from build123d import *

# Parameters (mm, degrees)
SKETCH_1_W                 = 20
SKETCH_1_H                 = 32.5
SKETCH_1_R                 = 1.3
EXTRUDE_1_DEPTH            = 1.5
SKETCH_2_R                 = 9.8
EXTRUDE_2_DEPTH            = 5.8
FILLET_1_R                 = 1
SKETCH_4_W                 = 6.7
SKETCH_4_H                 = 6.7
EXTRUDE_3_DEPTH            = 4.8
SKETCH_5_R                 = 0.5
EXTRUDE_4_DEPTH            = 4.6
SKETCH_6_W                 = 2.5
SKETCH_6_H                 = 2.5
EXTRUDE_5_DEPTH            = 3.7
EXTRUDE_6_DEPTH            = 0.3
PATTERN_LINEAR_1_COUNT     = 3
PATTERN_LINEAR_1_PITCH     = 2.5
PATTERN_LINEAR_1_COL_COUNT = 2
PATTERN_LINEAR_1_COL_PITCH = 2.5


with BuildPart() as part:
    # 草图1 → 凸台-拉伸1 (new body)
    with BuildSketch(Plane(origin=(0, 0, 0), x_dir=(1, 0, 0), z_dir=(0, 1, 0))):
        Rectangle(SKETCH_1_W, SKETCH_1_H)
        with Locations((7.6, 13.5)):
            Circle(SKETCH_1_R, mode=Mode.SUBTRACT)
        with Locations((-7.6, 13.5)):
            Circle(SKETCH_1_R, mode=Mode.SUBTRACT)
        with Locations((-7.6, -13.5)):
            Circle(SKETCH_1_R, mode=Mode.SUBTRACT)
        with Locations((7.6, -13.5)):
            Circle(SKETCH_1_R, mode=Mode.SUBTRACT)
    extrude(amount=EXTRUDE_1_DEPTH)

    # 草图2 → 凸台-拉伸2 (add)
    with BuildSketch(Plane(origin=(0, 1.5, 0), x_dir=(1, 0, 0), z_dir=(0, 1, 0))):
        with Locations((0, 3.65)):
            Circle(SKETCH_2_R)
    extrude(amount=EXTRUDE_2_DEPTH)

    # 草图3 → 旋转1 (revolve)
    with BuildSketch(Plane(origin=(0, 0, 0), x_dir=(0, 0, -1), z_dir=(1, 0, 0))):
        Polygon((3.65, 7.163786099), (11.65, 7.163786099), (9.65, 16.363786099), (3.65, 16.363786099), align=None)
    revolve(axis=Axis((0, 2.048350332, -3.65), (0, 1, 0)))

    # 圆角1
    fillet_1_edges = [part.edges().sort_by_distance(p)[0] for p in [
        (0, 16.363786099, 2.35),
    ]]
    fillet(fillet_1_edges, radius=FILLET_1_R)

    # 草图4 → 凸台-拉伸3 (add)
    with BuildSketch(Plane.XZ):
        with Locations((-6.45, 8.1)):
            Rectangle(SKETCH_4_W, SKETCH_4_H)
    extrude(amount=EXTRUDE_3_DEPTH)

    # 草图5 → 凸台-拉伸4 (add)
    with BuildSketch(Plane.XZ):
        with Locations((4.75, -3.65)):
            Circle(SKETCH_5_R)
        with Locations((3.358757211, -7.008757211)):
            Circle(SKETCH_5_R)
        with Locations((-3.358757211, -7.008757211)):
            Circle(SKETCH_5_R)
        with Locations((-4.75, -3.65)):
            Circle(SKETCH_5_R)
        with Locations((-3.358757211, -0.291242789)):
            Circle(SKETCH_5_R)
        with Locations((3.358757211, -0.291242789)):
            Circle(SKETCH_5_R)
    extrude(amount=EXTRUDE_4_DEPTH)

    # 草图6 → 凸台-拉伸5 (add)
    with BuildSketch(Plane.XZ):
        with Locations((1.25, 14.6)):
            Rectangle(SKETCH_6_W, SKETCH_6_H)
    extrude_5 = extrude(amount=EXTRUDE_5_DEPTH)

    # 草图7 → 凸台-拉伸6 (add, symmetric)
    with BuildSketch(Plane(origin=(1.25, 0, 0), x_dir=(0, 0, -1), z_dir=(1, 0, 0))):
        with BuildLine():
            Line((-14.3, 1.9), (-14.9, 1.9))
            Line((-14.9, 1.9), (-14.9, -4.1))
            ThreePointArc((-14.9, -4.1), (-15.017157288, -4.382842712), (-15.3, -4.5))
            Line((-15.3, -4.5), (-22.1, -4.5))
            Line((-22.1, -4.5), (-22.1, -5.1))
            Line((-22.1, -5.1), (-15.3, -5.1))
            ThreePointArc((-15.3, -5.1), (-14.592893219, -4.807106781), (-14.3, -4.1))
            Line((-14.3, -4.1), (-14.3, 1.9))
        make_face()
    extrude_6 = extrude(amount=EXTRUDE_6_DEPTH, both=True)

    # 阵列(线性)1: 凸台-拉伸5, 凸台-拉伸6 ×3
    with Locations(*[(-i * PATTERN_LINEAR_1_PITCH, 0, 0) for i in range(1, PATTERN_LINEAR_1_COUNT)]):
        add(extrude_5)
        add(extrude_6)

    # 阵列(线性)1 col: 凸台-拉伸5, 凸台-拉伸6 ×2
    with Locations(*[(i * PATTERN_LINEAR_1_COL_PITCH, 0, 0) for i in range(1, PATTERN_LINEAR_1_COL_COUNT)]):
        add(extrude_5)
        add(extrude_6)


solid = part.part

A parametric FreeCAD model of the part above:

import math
import FreeCAD as App
import Part
import Sketcher

V = App.Vector
Q = App.Units.Quantity


def edges_at(feature, points):
    """Names of the edges that pass closest to the given points."""
    edges = feature.Shape.Edges
    near = lambda p: min(range(len(edges)), key=lambda i: edges[i].distToShape(Part.Vertex(*p))[0])
    return sorted({f"Edge{near(p) + 1}" for p in points})

doc = App.newDocument("Part")
body = doc.addObject("PartDesign::Body", "Body")

# Sketch on XZ plane
sketch1 = doc.addObject("Sketcher::SketchObject", "Sketch")
body.addObject(sketch1)
sketch1.AttachmentSupport = (doc.XZ_Plane, [""])
sketch1.MapMode = "FlatFace"
sketch1.addGeometry(Part.LineSegment(V(-10, -16.2, 0), V(-10, 16.2, 0)), False)
sketch1.addGeometry(Part.LineSegment(V(-10, 16.2, 0), V(10, 16.2, 0)), False)
sketch1.addGeometry(Part.LineSegment(V(10, 16.2, 0), V(10, -16.2, 0)), False)
sketch1.addGeometry(Part.LineSegment(V(10, -16.2, 0), V(-10, -16.2, 0)), False)
sketch1.addGeometry(Part.Circle(V(-7.6, 13.5, 0), V(0, 0, 1), 1.3), False)
sketch1.addGeometry(Part.Circle(V(7.6, 13.5, 0), V(0, 0, 1), 1.3), False)
sketch1.addGeometry(Part.Circle(V(-7.6, -13.5, 0), V(0, 0, 1), 1.3), False)
sketch1.addGeometry(Part.Circle(V(7.6, -13.5, 0), V(0, 0, 1), 1.3), False)
sketch1.addConstraint(Sketcher.Constraint("Coincident", 0, 2, 1, 1))
sketch1.addConstraint(Sketcher.Constraint("Coincident", 1, 2, 2, 1))
sketch1.addConstraint(Sketcher.Constraint("Coincident", 2, 2, 3, 1))
sketch1.addConstraint(Sketcher.Constraint("Coincident", 3, 2, 0, 1))
sketch1.addConstraint(Sketcher.Constraint("Vertical", 0))
sketch1.addConstraint(Sketcher.Constraint("Horizontal", 1))
sketch1.addConstraint(Sketcher.Constraint("Vertical", 2))
sketch1.addConstraint(Sketcher.Constraint("Horizontal", 3))
sketch1.addConstraint(Sketcher.Constraint("Equal", 4, 5))
sketch1.addConstraint(Sketcher.Constraint("Equal", 5, 6))
sketch1.addConstraint(Sketcher.Constraint("Equal", 6, 7))
sketch1.addConstraint(Sketcher.Constraint("Symmetric", 5, 3, 6, 3, -1, 1))
sketch1.addConstraint(Sketcher.Constraint("Symmetric", 4, 3, 7, 3, -1, 1))
sketch1.addConstraint(Sketcher.Constraint("Symmetric", 0, 2, 2, 2, -1, 1))
sketch1.addConstraint(Sketcher.Constraint("Symmetric", 4, 3, 5, 3, -2))
sketch1.addConstraint(Sketcher.Constraint("Diameter", 4, Q("2.6 mm")))
sketch1.addConstraint(Sketcher.Constraint("DistanceX", 1, 1, 1, 2, Q("20 mm")))
sketch1.addConstraint(Sketcher.Constraint("DistanceY", 0, 1, 0, 2, Q("32.5 mm")))
sketch1.addConstraint(Sketcher.Constraint("DistanceY", 6, 3, 4, 3, Q("27 mm")))
sketch1.addConstraint(Sketcher.Constraint("DistanceX", 4, 3, -1, 1, Q("7.6 mm")))
pad1 = doc.addObject("PartDesign::Pad", "Pad")
body.addObject(pad1)
pad1.Profile = sketch1
pad1.Length = 1.5
pad1.Reversed = True

# Sketch on XZ plane
sketch2 = doc.addObject("Sketcher::SketchObject", "Sketch001")
body.addObject(sketch2)
sketch2.AttachmentSupport = (doc.XZ_Plane, [""])
sketch2.MapMode = "FlatFace"
sketch2.AttachmentOffset = App.Placement(V(0, 0, -1.5), App.Rotation())
sketch2.addGeometry(Part.Circle(V(0, -4, 0), V(0, 0, 1), 10), False)
sketch2.addConstraint(Sketcher.Constraint("PointOnObject", 0, 3, -2))
sketch2.addConstraint(Sketcher.Constraint("Diameter", 0, Q("19.6 mm")))
sketch2.addConstraint(Sketcher.Constraint("DistanceY", 0, 3, -1, 1, Q("3.65 mm")))
pad2 = doc.addObject("PartDesign::Pad", "Pad001")
body.addObject(pad2)
pad2.Profile = sketch2
pad2.Length = 5.8
pad2.Reversed = True

# Sketch on YZ plane
sketch3 = doc.addObject("Sketcher::SketchObject", "Sketch002")
body.addObject(sketch3)
sketch3.AttachmentSupport = (doc.YZ_Plane, [""])
sketch3.MapMode = "FlatFace"
sketch3.addGeometry(Part.LineSegment(V(7, -4, 0), V(7, -12, 0)), False)
sketch3.addGeometry(Part.LineSegment(V(7, -12, 0), V(16, -10, 0)), False)
sketch3.addGeometry(Part.LineSegment(V(16, -10, 0), V(16, -4, 0)), False)
sketch3.addGeometry(Part.LineSegment(V(16, -4, 0), V(7, -4, 0)), False)
sketch3.addGeometry(Part.LineSegment(V(7, -4, 0), V(16, -4, 0)), True)  # axis
sketch3.addConstraint(Sketcher.Constraint("Coincident", 0, 2, 1, 1))
sketch3.addConstraint(Sketcher.Constraint("Coincident", 1, 2, 2, 1))
sketch3.addConstraint(Sketcher.Constraint("Coincident", 2, 2, 3, 1))
sketch3.addConstraint(Sketcher.Constraint("Coincident", 3, 2, 0, 1))
sketch3.addConstraint(Sketcher.Constraint("Vertical", 0))
sketch3.addConstraint(Sketcher.Constraint("Vertical", 2))
sketch3.addConstraint(Sketcher.Constraint("Horizontal", 3))
sketch3.addConstraint(Sketcher.Constraint("Horizontal", 4))
sketch3.addConstraint(Sketcher.Constraint("Coincident", 4, 1, 3, 2))
sketch3.addConstraint(Sketcher.Constraint("Vertical", 1, 2, 4, 2))
sketch3.addConstraint(Sketcher.Constraint("DistanceY", 0, 2, 0, 1, Q("8 mm")))
sketch3.addConstraint(Sketcher.Constraint("DistanceY", 2, 1, 2, 2, Q("6 mm")))
sketch3.addConstraint(Sketcher.Constraint("DistanceX", 3, 2, 3, 1, Q("9.2 mm")))
sketch3.addConstraint(Sketcher.Constraint("DistanceY", 0, 2, -1, 1, Q("11.65 mm")))
sketch3.addConstraint(Sketcher.Constraint("DistanceX", -1, 1, 0, 2, Q("7.163786 mm")))
revolution = doc.addObject("PartDesign::Revolution", "Revolution")
body.addObject(revolution)
revolution.Profile = sketch3
revolution.ReferenceAxis = (sketch3, ["Axis0"])
revolution.Angle = 360
doc.recompute()

fillet = doc.addObject("PartDesign::Fillet", "Fillet")
body.addObject(fillet)
fillet.Base = (revolution, edges_at(revolution, [(0, 16.364, 2.35)]))
fillet.Radius = 1

# Sketch on XZ plane
sketch4 = doc.addObject("Sketcher::SketchObject", "Sketch003")
body.addObject(sketch4)
sketch4.AttachmentSupport = (doc.XZ_Plane, [""])
sketch4.MapMode = "FlatFace"
sketch4.addGeometry(Part.LineSegment(V(-10, 11, 0), V(-10, 5, 0)), False)
sketch4.addGeometry(Part.LineSegment(V(-10, 5, 0), V(-3, 5, 0)), False)
sketch4.addGeometry(Part.LineSegment(V(-3, 5, 0), V(-3, 11, 0)), False)
sketch4.addGeometry(Part.LineSegment(V(-3, 11, 0), V(-10, 11, 0)), False)
sketch4.addConstraint(Sketcher.Constraint("Coincident", 0, 2, 1, 1))
sketch4.addConstraint(Sketcher.Constraint("Coincident", 1, 2, 2, 1))
sketch4.addConstraint(Sketcher.Constraint("Coincident", 2, 2, 3, 1))
sketch4.addConstraint(Sketcher.Constraint("Coincident", 3, 2, 0, 1))
sketch4.addConstraint(Sketcher.Constraint("Vertical", 0))
sketch4.addConstraint(Sketcher.Constraint("Horizontal", 1))
sketch4.addConstraint(Sketcher.Constraint("Vertical", 2))
sketch4.addConstraint(Sketcher.Constraint("Horizontal", 3))
sketch4.addConstraint(Sketcher.Constraint("Equal", 3, 0))
sketch4.addConstraint(Sketcher.Constraint("DistanceX", 1, 1, 1, 2, Q("6.7 mm")))
sketch4.addConstraint(Sketcher.Constraint("DistanceX", 0, 2, -1, 1, Q("9.8 mm")))
sketch4.addConstraint(Sketcher.Constraint("DistanceY", -1, 1, 0, 2, Q("4.75 mm")))
pad3 = doc.addObject("PartDesign::Pad", "Pad002")
body.addObject(pad3)
pad3.Profile = sketch4
pad3.Length = 4.8

# Sketch on XZ plane
sketch5 = doc.addObject("Sketcher::SketchObject", "Sketch004")
body.addObject(sketch5)
sketch5.AttachmentSupport = (doc.XZ_Plane, [""])
sketch5.MapMode = "FlatFace"
sketch5.addGeometry(Part.Circle(V(4.8, -3.6, 0), V(0, 0, 1), 0.5), False)
sketch5.addGeometry(Part.Circle(V(3.4, -7, 0), V(0, 0, 1), 0.5), False)
sketch5.addGeometry(Part.Circle(V(-3.4, -7, 0), V(0, 0, 1), 0.5), False)
sketch5.addGeometry(Part.Circle(V(-4.8, -3.6, 0), V(0, 0, 1), 0.5), False)
sketch5.addGeometry(Part.Circle(V(-3.4, -0.3, 0), V(0, 0, 1), 0.5), False)
sketch5.addGeometry(Part.Circle(V(3.4, -0.3, 0), V(0, 0, 1), 0.5), False)
sketch5.addConstraint(Sketcher.Constraint("Equal", 0, 1))
sketch5.addConstraint(Sketcher.Constraint("Equal", 1, 2))
sketch5.addConstraint(Sketcher.Constraint("Equal", 2, 3))
sketch5.addConstraint(Sketcher.Constraint("Equal", 3, 4))
sketch5.addConstraint(Sketcher.Constraint("Equal", 4, 5))
sketch5.addConstraint(Sketcher.Constraint("Symmetric", 1, 3, 2, 3, -2))
sketch5.addConstraint(Sketcher.Constraint("Symmetric", 0, 3, 3, 3, -2))
sketch5.addConstraint(Sketcher.Constraint("Symmetric", 4, 3, 5, 3, -2))
sketch5.addConstraint(Sketcher.Constraint("Vertical", 2, 3, 4, 3))
sketch5.addConstraint(Sketcher.Constraint("Diameter", 0, Q("1 mm")))
sketch5.addConstraint(Sketcher.Constraint("DistanceX", 3, 3, 0, 3, Q("9.5 mm")))
sketch5.addConstraint(Sketcher.Constraint("DistanceY", 0, 3, -1, 1, Q("3.65 mm")))
sketch5.addConstraint(Sketcher.Constraint("DistanceX", -1, 1, 1, 3, Q("3.358757 mm")))
sketch5.addConstraint(Sketcher.Constraint("DistanceY", 1, 3, -1, 1, Q("7.008757 mm")))
sketch5.addConstraint(Sketcher.Constraint("DistanceY", 4, 3, -1, 1, Q("0.291243 mm")))
pad4 = doc.addObject("PartDesign::Pad", "Pad003")
body.addObject(pad4)
pad4.Profile = sketch5
pad4.Length = 4.6

# Sketch on XZ plane
sketch6 = doc.addObject("Sketcher::SketchObject", "Sketch005")
body.addObject(sketch6)
sketch6.AttachmentSupport = (doc.XZ_Plane, [""])
sketch6.MapMode = "FlatFace"
sketch6.addGeometry(Part.LineSegment(V(0, 15.8, 0), V(0, 13.3, 0)), False)
sketch6.addGeometry(Part.LineSegment(V(0, 13.3, 0), V(2.5, 13.3, 0)), False)
sketch6.addGeometry(Part.LineSegment(V(2.5, 13.3, 0), V(2.5, 15.8, 0)), False)
sketch6.addGeometry(Part.LineSegment(V(2.5, 15.8, 0), V(0, 15.8, 0)), False)
sketch6.addConstraint(Sketcher.Constraint("Coincident", 0, 2, 1, 1))
sketch6.addConstraint(Sketcher.Constraint("Coincident", 1, 2, 2, 1))
sketch6.addConstraint(Sketcher.Constraint("Coincident", 2, 2, 3, 1))
sketch6.addConstraint(Sketcher.Constraint("Coincident", 3, 2, 0, 1))
sketch6.addConstraint(Sketcher.Constraint("Vertical", 0))
sketch6.addConstraint(Sketcher.Constraint("Horizontal", 1))
sketch6.addConstraint(Sketcher.Constraint("Vertical", 2))
sketch6.addConstraint(Sketcher.Constraint("Horizontal", 3))
sketch6.addConstraint(Sketcher.Constraint("PointOnObject", 0, 2, -2))
sketch6.addConstraint(Sketcher.Constraint("Equal", 3, 0))
sketch6.addConstraint(Sketcher.Constraint("DistanceX", 1, 1, 1, 2, Q("2.5 mm")))
sketch6.addConstraint(Sketcher.Constraint("DistanceY", -1, 1, 0, 2, Q("13.35 mm")))
pad5 = doc.addObject("PartDesign::Pad", "Pad004")
body.addObject(pad5)
pad5.Profile = sketch6
pad5.Length = 3.7

# Sketch on YZ plane
sketch7 = doc.addObject("Sketcher::SketchObject", "Sketch006")
body.addObject(sketch7)
sketch7.AttachmentSupport = (doc.YZ_Plane, [""])
sketch7.MapMode = "FlatFace"
sketch7.AttachmentOffset = App.Placement(V(0, 0, 1.25), App.Rotation())
sketch7.addGeometry(Part.LineSegment(V(1.9, 14.3, 0), V(1.9, 14.9, 0)), False)
sketch7.addGeometry(Part.LineSegment(V(1.9, 14.9, 0), V(-4.1, 14.9, 0)), False)
sketch7.addGeometry(Part.ArcOfCircle(Part.Circle(V(-4.1, 15.3, 0), V(0, 0, 1), 0.4), math.radians(-180), math.radians(-90)), False)
sketch7.addGeometry(Part.LineSegment(V(-4.5, 15.3, 0), V(-4.5, 22.1, 0)), False)
sketch7.addGeometry(Part.LineSegment(V(-4.5, 22.1, 0), V(-5.1, 22.1, 0)), False)
sketch7.addGeometry(Part.LineSegment(V(-5.1, 22.1, 0), V(-5.1, 15.3, 0)), False)
sketch7.addGeometry(Part.ArcOfCircle(Part.Circle(V(-4.1, 15.3, 0), V(0, 0, 1), 1), math.radians(-180), math.radians(-90)), False)
sketch7.addGeometry(Part.LineSegment(V(-4.1, 14.3, 0), V(1.9, 14.3, 0)), False)
sketch7.addConstraint(Sketcher.Constraint("Coincident", 0, 2, 1, 1))
sketch7.addConstraint(Sketcher.Constraint("Tangent", 1, 2, 2, 2))
sketch7.addConstraint(Sketcher.Constraint("Tangent", 2, 1, 3, 1))
sketch7.addConstraint(Sketcher.Constraint("Coincident", 3, 2, 4, 1))
sketch7.addConstraint(Sketcher.Constraint("Coincident", 4, 2, 5, 1))
sketch7.addConstraint(Sketcher.Constraint("Tangent", 5, 2, 6, 1))
sketch7.addConstraint(Sketcher.Constraint("Tangent", 6, 2, 7, 1))
sketch7.addConstraint(Sketcher.Constraint("Coincident", 7, 2, 0, 1))
sketch7.addConstraint(Sketcher.Constraint("Vertical", 0))
sketch7.addConstraint(Sketcher.Constraint("Horizontal", 1))
sketch7.addConstraint(Sketcher.Constraint("Vertical", 3))
sketch7.addConstraint(Sketcher.Constraint("Horizontal", 4))
sketch7.addConstraint(Sketcher.Constraint("Vertical", 5))
sketch7.addConstraint(Sketcher.Constraint("Horizontal", 7))
sketch7.addConstraint(Sketcher.Constraint("Coincident", 6, 3, 2, 3))
sketch7.addConstraint(Sketcher.Constraint("Radius", 6, Q("1 mm")))
sketch7.addConstraint(Sketcher.Constraint("Radius", 2, Q("0.4 mm")))
sketch7.addConstraint(Sketcher.Constraint("DistanceX", 1, 2, 1, 1, Q("6 mm")))
sketch7.addConstraint(Sketcher.Constraint("DistanceY", 3, 1, 3, 2, Q("6.8 mm")))
sketch7.addConstraint(Sketcher.Constraint("DistanceX", 2, 3, -1, 1, Q("4.1 mm")))
sketch7.addConstraint(Sketcher.Constraint("DistanceY", -1, 1, 2, 3, Q("15.3 mm")))
pad6 = doc.addObject("PartDesign::Pad", "Pad005")
body.addObject(pad6)
pad6.Profile = sketch7
pad6.Length = 0.6
pad6.Midplane = True
doc.recompute()

linearpattern = doc.addObject("PartDesign::LinearPattern", "LinearPattern")
body.addObject(linearpattern)
linearpattern.Originals = [pad5, pad6]
linearpattern.Direction = (doc.X_Axis, [""])
linearpattern.Mode = "offset"
linearpattern.Offset = 2.5
linearpattern.Occurrences = 3
linearpattern.Reversed = True
body.Tip = linearpattern
doc.recompute()

linearpattern2 = doc.addObject("PartDesign::LinearPattern", "LinearPattern001")
body.addObject(linearpattern2)
linearpattern2.Originals = [pad5, pad6]
linearpattern2.Direction = (doc.X_Axis, [""])
linearpattern2.Mode = "offset"
linearpattern2.Offset = 2.5
linearpattern2.Occurrences = 2
body.Tip = linearpattern2

doc.recompute()
